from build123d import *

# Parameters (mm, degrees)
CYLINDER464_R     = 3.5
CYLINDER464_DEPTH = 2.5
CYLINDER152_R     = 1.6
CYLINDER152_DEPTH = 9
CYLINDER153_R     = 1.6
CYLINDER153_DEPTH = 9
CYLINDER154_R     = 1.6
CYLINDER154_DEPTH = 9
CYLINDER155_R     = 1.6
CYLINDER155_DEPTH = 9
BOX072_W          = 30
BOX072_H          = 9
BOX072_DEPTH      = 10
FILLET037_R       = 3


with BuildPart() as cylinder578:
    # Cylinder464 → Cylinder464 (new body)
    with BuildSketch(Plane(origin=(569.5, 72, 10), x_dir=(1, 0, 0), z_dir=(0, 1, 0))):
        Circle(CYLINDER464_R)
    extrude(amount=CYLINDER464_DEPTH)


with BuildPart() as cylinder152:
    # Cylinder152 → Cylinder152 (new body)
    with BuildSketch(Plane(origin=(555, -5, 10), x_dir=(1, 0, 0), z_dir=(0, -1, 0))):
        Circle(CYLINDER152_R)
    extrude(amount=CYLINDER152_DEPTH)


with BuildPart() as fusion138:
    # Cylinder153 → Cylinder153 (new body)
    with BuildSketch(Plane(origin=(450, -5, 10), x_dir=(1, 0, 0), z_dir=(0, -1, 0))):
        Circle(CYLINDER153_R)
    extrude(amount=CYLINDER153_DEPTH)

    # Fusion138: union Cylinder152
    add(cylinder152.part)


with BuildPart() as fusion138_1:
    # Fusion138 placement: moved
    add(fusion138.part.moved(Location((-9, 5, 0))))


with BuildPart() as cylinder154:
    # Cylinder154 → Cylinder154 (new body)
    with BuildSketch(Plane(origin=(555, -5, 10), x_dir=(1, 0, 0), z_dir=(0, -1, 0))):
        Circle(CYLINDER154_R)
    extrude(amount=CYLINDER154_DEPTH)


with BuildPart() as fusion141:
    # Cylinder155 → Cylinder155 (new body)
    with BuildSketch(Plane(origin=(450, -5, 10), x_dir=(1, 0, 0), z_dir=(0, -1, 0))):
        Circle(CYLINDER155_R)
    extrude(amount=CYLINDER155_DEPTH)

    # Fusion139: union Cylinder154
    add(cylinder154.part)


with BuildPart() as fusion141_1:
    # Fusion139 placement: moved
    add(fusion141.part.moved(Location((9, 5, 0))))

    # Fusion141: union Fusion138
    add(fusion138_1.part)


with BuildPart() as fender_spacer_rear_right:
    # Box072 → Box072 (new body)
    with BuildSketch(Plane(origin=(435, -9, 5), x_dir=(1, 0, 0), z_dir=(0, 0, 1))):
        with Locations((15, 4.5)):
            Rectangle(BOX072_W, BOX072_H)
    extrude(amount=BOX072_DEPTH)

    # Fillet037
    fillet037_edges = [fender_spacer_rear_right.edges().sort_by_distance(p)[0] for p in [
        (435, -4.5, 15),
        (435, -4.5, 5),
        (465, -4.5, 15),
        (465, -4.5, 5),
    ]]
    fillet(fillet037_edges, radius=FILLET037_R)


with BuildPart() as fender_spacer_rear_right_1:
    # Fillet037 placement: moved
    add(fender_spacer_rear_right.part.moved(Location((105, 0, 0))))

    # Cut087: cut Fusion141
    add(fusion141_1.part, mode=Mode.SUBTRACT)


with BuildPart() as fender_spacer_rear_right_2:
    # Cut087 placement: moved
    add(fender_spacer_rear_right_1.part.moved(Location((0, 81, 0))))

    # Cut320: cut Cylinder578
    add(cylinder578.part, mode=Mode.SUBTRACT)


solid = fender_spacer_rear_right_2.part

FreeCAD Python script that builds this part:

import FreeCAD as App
import Part
import Sketcher
from FreeCAD import Vector
Q = App.Units.Quantity


def edges_at(feature, points):
    """Names of the edges that pass closest to the given points."""
    edges = feature.Shape.Edges
    near = lambda p: min(range(len(edges)), key=lambda i: edges[i].distToShape(Part.Vertex(*p))[0])
    return sorted({f"Edge{near(p) + 1}" for p in points})


def add_polygon(sketch, points):
    """Adds a closed chain of lines whose ends are joined by coincident constraints."""
    first, n = sketch.GeometryCount, len(points)
    for a, b in zip(points, points[1:] + points[:1]):
        sketch.addGeometry(Part.LineSegment(App.Vector(*a, 0), App.Vector(*b, 0)), False)
    for i in range(n):
        sketch.addConstraint(Sketcher.Constraint("Coincident", first + i, 2, first + (i + 1) % n, 1))

doc = App.newDocument("Part")
body = doc.addObject("PartDesign::Body", "Body")

# Sketch on XZ plane
sketch1 = body.newObject("Sketcher::SketchObject", "Sketch")
sketch1.AttachmentSupport = (doc.getObject("XZ_Plane"), [""])
sketch1.MapMode = "FlatFace"
sketch1.AttachmentOffset = App.Placement(Vector(0, 0, -72), App.Rotation())
sketch1.addGeometry(Part.Circle(Vector(569.5, 10, 0), Vector(0, 0, 1), 3.5), False)
sketch1.addConstraint([
    Sketcher.Constraint("Diameter", 0, Q("7 mm")),
    Sketcher.Constraint("DistanceY", -1, 1, 0, 3, Q("10 mm")),
    Sketcher.Constraint("DistanceX", -1, 1, 0, 3, Q("569.5 mm")),
])
pad1 = body.newObject("PartDesign::Pad", "Pad")
pad1.Profile = sketch1
pad1.Length = 2.5
pad1.Reversed = True
body2 = doc.addObject("PartDesign::Body", "Body001")

# Sketch on XZ plane
sketch2 = body2.newObject("Sketcher::SketchObject", "Sketch001")
sketch2.AttachmentSupport = (doc.getObject("XZ_Plane001"), [""])
sketch2.MapMode = "FlatFace"
sketch2.AttachmentOffset = App.Placement(Vector(0, 0, 5), App.Rotation())
sketch2.addGeometry(Part.Circle(Vector(555, 10, 0), Vector(0, 0, 1), 1.6), False)
sketch2.addConstraint([
    Sketcher.Constraint("Diameter", 0, Q("3.2 mm")),
    Sketcher.Constraint("DistanceX", -1, 1, 0, 3, Q("555 mm")),
    Sketcher.Constraint("DistanceY", -1, 1, 0, 3, Q("10 mm")),
])
pad2 = body2.newObject("PartDesign::Pad", "Pad001")
pad2.Profile = sketch2
pad2.Length = 9
body3 = doc.addObject("PartDesign::Body", "Body002")
body3.AllowCompound = True

# Sketch on XZ plane
sketch3 = body3.newObject("Sketcher::SketchObject", "Sketch002")
sketch3.AttachmentSupport = (doc.getObject("XZ_Plane002"), [""])
sketch3.MapMode = "FlatFace"
sketch3.AttachmentOffset = App.Placement(Vector(0, 0, 5), App.Rotation())
sketch3.addGeometry(Part.Circle(Vector(450, 10, 0), Vector(0, 0, 1), 1.6), False)
sketch3.addConstraint([
    Sketcher.Constraint("Diameter", 0, Q("3.2 mm")),
    Sketcher.Constraint("DistanceX", -1, 1, 0, 3, Q("450 mm")),
    Sketcher.Constraint("DistanceY", -1, 1, 0, 3, Q("10 mm")),
])
pad3 = body3.newObject("PartDesign::Pad", "Pad002")
pad3.Profile = sketch3
pad3.Length = 9
doc.recompute()

boolean = body3.newObject("PartDesign::Boolean", "Boolean")
boolean.Type = "Fuse"
boolean.addObjects([body2])
body4 = doc.addObject("PartDesign::Body", "Body003")
body4.AllowCompound = True
doc.recompute()

body3.Placement = App.Placement(Vector(-9, 5, 0), App.Rotation(Vector(0, 0, 1), 0))
boolean2 = body4.newObject("PartDesign::Boolean", "Boolean001")
boolean2.Type = "Fuse"
boolean2.addObjects([body3])
body5 = doc.addObject("PartDesign::Body", "Body004")

# Sketch on XZ plane
sketch4 = body5.newObject("Sketcher::SketchObject", "Sketch003")
sketch4.AttachmentSupport = (doc.getObject("XZ_Plane004"), [""])
sketch4.MapMode = "FlatFace"
sketch4.AttachmentOffset = App.Placement(Vector(0, 0, 5), App.Rotation())
sketch4.addGeometry(Part.Circle(Vector(555, 10, 0), Vector(0, 0, 1), 1.6), False)
sketch4.addConstraint([
    Sketcher.Constraint("Diameter", 0, Q("3.2 mm")),
    Sketcher.Constraint("DistanceX", -1, 1, 0, 3, Q("555 mm")),
    Sketcher.Constraint("DistanceY", -1, 1, 0, 3, Q("10 mm")),
])
pad4 = body5.newObject("PartDesign::Pad", "Pad003")
pad4.Profile = sketch4
pad4.Length = 9
body6 = doc.addObject("PartDesign::Body", "Body005")
body6.AllowCompound = True

# Sketch on XZ plane
sketch5 = body6.newObject("Sketcher::SketchObject", "Sketch004")
sketch5.AttachmentSupport = (doc.getObject("XZ_Plane005"), [""])
sketch5.MapMode = "FlatFace"
sketch5.AttachmentOffset = App.Placement(Vector(0, 0, 5), App.Rotation())
sketch5.addGeometry(Part.Circle(Vector(450, 10, 0), Vector(0, 0, 1), 1.6), False)
sketch5.addConstraint([
    Sketcher.Constraint("Diameter", 0, Q("3.2 mm")),
    Sketcher.Constraint("DistanceX", -1, 1, 0, 3, Q("450 mm")),
    Sketcher.Constraint("DistanceY", -1, 1, 0, 3, Q("10 mm")),
])
pad5 = body6.newObject("PartDesign::Pad", "Pad004")
pad5.Profile = sketch5
pad5.Length = 9
doc.recompute()

boolean3 = body6.newObject("PartDesign::Boolean", "Boolean002")
boolean3.Type = "Fuse"
boolean3.addObjects([body5])
body7 = doc.addObject("PartDesign::Body", "Body006")
body7.AllowCompound = True
doc.recompute()

body6.Placement = App.Placement(Vector(9, 5, 0), App.Rotation(Vector(0, 0, 1), 0))
boolean4 = body7.newObject("PartDesign::Boolean", "Boolean003")
boolean4.Type = "Fuse"
boolean4.addObjects([body6])
doc.recompute()

boolean5 = body7.newObject("PartDesign::Boolean", "Boolean004")
boolean5.Type = "Fuse"
boolean5.addObjects([body4])
body8 = doc.addObject("PartDesign::Body", "Body007")

# Sketch on XY plane
sketch6 = body8.newObject("Sketcher::SketchObject", "Sketch005")
sketch6.AttachmentSupport = (doc.getObject("XY_Plane007"), [""])
sketch6.MapMode = "FlatFace"
sketch6.AttachmentOffset = App.Placement(Vector(0, 0, 5), App.Rotation())
add_polygon(sketch6, [(435, 0), (435, -9), (465, -9), (465, 0)])  # lines 0-3
sketch6.addConstraint([
    Sketcher.Constraint("Vertical", 0),
    Sketcher.Constraint("Horizontal", 1),
    Sketcher.Constraint("Vertical", 2),
    Sketcher.Constraint("Horizontal", 3),
    Sketcher.Constraint("PointOnObject", 2, 2, -1),
    Sketcher.Constraint("DistanceX", 1, 1, 1, 2, Q("30 mm")),
    Sketcher.Constraint("DistanceY", 0, 2, 0, 1, Q("9 mm")),
    Sketcher.Constraint("DistanceX", -1, 1, 0, 2, Q("435 mm")),
])
pad6 = body8.newObject("PartDesign::Pad", "Pad005")
pad6.Profile = sketch6
pad6.Length = 10
doc.recompute()

fillet = body8.newObject("PartDesign::Fillet", "Fillet")
fillet.Base = (pad6, edges_at(pad6, [
    (435, -4.5, 15),
    (435, -4.5, 5),
    (465, -4.5, 15),
    (465, -4.5, 5),
]))
fillet.Radius = 3
body9 = doc.addObject("PartDesign::Body", "Body008")
doc.recompute()

body8.Placement = App.Placement(Vector(105, 0, 0), App.Rotation(Vector(0, 0, 1), 0))
boolean6 = body9.newObject("PartDesign::Boolean", "Boolean005")
boolean6.Type = "Fuse"
boolean6.addObjects([body8])
doc.recompute()

boolean7 = body9.newObject("PartDesign::Boolean", "Boolean006")
boolean7.Type = "Cut"
boolean7.addObjects([body7])
body10 = doc.addObject("PartDesign::Body", "Body009")
doc.recompute()

body9.Placement = App.Placement(Vector(0, 81, 0), App.Rotation(Vector(0, 0, 1), 0))
boolean8 = body10.newObject("PartDesign::Boolean", "Boolean007")
boolean8.Type = "Fuse"
boolean8.addObjects([body9])
doc.recompute()

boolean9 = body10.newObject("PartDesign::Boolean", "Boolean008")
boolean9.Type = "Cut"
boolean9.addObjects([body])

doc.recompute()
